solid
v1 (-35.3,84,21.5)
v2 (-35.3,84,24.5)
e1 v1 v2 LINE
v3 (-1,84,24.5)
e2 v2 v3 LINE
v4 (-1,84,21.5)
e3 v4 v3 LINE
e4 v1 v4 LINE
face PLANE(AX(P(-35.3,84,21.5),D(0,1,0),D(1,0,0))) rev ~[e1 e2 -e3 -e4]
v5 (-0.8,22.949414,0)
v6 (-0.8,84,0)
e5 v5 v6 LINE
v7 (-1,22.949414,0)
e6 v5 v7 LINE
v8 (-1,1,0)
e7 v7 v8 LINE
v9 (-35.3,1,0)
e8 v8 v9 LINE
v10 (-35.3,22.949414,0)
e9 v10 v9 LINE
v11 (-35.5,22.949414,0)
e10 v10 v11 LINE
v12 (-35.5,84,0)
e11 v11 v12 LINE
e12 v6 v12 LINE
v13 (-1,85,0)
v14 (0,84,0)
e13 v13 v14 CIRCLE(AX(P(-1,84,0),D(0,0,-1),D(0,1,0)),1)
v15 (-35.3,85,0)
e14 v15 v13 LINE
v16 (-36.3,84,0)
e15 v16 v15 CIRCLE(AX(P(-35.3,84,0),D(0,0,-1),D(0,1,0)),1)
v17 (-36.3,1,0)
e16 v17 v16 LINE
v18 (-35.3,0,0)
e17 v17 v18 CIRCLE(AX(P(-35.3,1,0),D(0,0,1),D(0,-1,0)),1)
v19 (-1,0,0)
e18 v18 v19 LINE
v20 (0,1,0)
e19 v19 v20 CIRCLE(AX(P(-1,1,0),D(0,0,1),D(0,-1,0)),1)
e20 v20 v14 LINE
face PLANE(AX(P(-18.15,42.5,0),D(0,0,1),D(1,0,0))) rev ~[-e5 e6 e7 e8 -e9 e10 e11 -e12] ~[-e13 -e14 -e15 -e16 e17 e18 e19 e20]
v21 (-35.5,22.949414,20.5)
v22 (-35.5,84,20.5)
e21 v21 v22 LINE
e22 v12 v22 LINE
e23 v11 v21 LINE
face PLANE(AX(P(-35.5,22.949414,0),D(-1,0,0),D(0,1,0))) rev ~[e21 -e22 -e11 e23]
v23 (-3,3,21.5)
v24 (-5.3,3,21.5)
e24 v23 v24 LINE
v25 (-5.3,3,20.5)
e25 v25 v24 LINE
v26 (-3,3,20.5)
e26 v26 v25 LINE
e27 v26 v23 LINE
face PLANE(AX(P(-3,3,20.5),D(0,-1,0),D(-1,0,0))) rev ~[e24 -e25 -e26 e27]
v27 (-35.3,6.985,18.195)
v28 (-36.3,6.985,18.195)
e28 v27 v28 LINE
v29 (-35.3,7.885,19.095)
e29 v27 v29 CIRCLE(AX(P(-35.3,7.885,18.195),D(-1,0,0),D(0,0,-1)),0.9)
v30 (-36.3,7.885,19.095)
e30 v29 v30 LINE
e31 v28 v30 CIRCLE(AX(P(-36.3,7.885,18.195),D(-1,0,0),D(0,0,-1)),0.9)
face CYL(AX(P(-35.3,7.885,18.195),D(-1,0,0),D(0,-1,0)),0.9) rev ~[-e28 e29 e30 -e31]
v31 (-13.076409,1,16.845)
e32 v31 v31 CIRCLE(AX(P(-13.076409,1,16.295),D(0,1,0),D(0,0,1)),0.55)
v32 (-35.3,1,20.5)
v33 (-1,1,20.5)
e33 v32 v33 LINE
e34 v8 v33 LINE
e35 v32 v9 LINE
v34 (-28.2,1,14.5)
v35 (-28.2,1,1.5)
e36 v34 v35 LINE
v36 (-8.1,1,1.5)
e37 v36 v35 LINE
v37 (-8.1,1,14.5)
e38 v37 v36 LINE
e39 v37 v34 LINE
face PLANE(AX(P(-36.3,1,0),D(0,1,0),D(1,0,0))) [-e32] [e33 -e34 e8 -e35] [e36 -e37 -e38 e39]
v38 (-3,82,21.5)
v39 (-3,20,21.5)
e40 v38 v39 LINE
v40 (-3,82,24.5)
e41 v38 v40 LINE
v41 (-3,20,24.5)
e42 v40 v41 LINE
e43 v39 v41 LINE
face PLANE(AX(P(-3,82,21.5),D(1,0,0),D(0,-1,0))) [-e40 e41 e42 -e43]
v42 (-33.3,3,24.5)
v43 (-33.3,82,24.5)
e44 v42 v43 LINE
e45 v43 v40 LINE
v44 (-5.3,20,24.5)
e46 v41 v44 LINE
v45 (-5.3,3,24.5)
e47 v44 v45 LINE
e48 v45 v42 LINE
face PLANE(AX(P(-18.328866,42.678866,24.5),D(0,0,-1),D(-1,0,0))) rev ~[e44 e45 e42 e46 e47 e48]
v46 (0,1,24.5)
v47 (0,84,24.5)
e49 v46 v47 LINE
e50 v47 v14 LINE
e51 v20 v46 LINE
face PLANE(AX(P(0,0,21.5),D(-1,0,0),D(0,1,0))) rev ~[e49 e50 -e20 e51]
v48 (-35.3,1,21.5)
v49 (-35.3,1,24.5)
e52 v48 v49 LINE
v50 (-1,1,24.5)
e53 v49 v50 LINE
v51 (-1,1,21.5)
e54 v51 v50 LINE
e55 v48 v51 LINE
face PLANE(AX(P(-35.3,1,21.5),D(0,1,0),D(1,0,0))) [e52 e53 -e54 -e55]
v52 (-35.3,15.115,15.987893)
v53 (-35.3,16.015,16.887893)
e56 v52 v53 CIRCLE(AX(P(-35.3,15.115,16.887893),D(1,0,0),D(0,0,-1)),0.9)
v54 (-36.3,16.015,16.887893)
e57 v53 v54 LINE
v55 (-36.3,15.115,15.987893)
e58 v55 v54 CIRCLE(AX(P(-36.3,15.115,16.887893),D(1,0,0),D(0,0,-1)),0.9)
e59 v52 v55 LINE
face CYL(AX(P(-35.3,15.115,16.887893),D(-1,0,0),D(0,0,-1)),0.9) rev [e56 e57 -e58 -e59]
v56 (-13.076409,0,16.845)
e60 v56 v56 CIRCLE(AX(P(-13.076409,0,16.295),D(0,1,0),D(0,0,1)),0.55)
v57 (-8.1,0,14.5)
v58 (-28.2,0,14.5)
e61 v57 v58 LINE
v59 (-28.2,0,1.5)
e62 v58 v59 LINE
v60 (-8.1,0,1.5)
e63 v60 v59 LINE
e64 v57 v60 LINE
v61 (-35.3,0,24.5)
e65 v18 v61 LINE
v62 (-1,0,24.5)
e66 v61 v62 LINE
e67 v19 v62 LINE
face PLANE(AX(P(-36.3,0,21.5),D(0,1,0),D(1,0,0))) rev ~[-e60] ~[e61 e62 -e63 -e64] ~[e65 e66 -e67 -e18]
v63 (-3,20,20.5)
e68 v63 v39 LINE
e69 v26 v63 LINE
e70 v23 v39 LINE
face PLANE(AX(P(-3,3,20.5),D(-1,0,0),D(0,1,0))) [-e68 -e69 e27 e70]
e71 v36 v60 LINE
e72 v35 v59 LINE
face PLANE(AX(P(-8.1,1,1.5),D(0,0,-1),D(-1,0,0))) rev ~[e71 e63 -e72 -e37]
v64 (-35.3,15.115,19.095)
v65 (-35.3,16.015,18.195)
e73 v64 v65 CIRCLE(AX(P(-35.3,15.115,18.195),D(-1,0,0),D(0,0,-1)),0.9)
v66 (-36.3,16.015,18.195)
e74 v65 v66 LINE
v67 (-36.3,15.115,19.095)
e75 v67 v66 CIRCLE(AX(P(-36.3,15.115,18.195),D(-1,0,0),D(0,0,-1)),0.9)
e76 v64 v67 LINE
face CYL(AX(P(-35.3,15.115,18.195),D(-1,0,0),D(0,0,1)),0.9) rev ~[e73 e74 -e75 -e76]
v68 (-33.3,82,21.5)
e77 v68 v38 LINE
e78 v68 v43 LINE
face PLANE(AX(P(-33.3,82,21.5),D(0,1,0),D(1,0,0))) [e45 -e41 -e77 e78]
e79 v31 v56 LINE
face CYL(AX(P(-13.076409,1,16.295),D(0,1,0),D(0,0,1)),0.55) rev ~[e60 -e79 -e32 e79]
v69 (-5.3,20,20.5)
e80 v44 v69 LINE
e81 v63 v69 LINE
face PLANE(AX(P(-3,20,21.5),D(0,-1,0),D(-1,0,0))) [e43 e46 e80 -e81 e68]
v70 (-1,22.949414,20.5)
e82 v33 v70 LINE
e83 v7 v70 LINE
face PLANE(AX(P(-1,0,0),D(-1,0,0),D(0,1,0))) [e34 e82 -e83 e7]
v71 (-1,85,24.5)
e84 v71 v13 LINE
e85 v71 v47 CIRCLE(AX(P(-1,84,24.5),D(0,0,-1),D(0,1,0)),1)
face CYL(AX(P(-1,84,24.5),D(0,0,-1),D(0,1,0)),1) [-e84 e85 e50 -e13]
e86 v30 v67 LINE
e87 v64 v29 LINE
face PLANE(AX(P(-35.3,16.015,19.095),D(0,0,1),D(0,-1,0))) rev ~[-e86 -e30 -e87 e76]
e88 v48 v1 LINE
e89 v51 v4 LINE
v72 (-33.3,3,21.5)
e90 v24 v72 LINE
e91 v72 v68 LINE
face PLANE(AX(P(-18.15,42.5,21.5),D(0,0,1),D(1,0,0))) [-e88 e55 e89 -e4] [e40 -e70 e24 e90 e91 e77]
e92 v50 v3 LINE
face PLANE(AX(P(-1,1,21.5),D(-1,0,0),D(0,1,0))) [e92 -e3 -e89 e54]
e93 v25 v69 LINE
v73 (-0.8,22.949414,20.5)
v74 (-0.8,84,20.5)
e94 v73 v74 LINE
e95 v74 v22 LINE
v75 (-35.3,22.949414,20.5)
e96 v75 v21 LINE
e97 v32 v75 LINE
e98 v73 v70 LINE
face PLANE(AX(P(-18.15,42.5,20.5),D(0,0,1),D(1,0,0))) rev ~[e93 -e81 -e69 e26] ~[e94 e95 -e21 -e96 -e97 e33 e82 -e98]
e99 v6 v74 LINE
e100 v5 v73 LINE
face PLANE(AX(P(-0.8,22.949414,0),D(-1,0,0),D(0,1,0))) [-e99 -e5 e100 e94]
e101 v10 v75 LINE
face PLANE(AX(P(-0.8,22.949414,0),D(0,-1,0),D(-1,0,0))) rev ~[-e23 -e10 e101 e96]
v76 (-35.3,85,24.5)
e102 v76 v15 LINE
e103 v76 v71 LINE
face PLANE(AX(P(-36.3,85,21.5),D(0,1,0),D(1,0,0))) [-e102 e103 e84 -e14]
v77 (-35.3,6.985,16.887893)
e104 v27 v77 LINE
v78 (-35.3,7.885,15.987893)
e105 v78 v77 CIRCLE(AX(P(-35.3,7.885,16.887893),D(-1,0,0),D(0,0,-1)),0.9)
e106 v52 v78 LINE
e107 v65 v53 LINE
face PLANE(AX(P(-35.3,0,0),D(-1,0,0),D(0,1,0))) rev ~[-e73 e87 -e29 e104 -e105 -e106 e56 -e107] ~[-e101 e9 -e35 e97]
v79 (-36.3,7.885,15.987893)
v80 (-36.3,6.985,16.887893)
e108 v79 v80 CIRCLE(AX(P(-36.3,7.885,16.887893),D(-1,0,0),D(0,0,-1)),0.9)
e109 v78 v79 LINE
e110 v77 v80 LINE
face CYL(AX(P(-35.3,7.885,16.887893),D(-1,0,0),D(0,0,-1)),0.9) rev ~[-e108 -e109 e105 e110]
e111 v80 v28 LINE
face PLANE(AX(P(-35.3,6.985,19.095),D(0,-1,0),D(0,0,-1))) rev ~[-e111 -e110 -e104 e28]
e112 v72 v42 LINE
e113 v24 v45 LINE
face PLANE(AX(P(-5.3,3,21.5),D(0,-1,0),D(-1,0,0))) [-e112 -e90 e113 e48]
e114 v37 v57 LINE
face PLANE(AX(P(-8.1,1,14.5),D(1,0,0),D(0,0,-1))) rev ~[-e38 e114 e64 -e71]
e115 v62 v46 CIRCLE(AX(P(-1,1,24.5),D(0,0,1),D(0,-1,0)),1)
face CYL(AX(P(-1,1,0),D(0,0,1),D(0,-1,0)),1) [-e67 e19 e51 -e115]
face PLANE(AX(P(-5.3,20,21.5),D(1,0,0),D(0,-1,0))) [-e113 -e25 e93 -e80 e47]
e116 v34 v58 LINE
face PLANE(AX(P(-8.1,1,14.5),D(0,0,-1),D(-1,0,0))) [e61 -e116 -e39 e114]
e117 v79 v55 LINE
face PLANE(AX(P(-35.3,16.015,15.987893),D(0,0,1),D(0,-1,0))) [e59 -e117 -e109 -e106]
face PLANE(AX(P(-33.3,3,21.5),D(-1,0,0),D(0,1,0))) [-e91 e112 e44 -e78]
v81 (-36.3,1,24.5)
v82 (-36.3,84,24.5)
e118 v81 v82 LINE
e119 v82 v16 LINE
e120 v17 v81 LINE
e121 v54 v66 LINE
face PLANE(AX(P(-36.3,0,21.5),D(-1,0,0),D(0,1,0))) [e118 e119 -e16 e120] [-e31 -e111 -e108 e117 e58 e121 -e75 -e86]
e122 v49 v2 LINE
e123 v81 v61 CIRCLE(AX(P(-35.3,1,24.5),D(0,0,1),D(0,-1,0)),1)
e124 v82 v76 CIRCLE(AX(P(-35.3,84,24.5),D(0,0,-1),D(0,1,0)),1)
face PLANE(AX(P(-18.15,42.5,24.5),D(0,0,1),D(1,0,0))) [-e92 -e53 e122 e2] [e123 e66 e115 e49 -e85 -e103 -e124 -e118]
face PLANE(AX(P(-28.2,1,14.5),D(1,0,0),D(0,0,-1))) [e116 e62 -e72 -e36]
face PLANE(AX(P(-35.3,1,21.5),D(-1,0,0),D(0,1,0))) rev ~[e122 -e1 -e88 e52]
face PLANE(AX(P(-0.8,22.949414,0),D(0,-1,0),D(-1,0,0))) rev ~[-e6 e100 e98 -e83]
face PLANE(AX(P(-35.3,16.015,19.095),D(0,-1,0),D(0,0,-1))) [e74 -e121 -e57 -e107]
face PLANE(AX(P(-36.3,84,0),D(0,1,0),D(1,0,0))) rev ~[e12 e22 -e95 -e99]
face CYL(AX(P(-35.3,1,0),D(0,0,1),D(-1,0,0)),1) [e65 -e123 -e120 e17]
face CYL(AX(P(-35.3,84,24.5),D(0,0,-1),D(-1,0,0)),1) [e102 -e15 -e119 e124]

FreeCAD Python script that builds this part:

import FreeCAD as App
import Part
import Sketcher
from FreeCAD import Vector


def edges_at(feature, points):
    """Names of the edges that pass closest to the given points."""
    edges = feature.Shape.Edges
    near = lambda p: min(range(len(edges)), key=lambda i: edges[i].distToShape(Part.Vertex(*p))[0])
    return sorted({f"Edge{near(p) + 1}" for p in points})


def faces_at(feature, points):
    """Names of the faces that lie closest to the given points."""
    faces = feature.Shape.Faces
    near = lambda p: min(range(len(faces)), key=lambda i: faces[i].distToShape(Part.Vertex(*p))[0])
    return sorted({f"Face{near(p) + 1}" for p in points})

doc = App.newDocument("Part")
body = doc.addObject("PartDesign::Body", "Body")

sketch1 = doc.addObject("Sketcher::SketchObject", "Sketch")
body.addObject(sketch1)
sketch1.AttachmentSupport = (doc.XY_Plane, [""])
sketch1.MapMode = "FlatFace"
sketch1.addGeometry(Part.LineSegment(Vector(-36, 85, 0), Vector(-36, 0, 0)), False)
sketch1.addGeometry(Part.LineSegment(Vector(-36, 0, 0), Vector(0, 0, 0)), False)
sketch1.addGeometry(Part.LineSegment(Vector(0, 0, 0), Vector(0, 85, 0)), False)
sketch1.addGeometry(Part.LineSegment(Vector(0, 85, 0), Vector(-36, 85, 0)), False)
sketch1.addConstraint(Sketcher.Constraint("Coincident", 0, 2, 1, 1))
sketch1.addConstraint(Sketcher.Constraint("Coincident", 1, 2, 2, 1))
sketch1.addConstraint(Sketcher.Constraint("Coincident", 2, 2, 3, 1))
sketch1.addConstraint(Sketcher.Constraint("Coincident", 3, 2, 0, 1))
sketch1.addConstraint(Sketcher.Constraint("Vertical", 0))
sketch1.addConstraint(Sketcher.Constraint("Horizontal", 1))
sketch1.addConstraint(Sketcher.Constraint("Vertical", 2))
sketch1.addConstraint(Sketcher.Constraint("Horizontal", 3))
sketch1.addConstraint(Sketcher.Constraint("Coincident", 1, 2, -1, 1))
sketch1.addConstraint(Sketcher.Constraint("DistanceY", 0, 2, 0, 1, 85.0))
sketch1.addConstraint(Sketcher.Constraint("DistanceX", 1, 1, 1, 2, 36.3))
pad1 = doc.addObject("PartDesign::Pad", "Pad")
body.addObject(pad1)
pad1.Profile = sketch1
pad1.Length = 21.5
doc.recompute()

thickness = doc.addObject("PartDesign::Thickness", "Thickness")
body.addObject(thickness)
thickness.Base = (pad1, faces_at(pad1, [(-18.15, 42.5, 0)]))
thickness.Value = 1
thickness.Reversed = True
thickness.Join = "Intersection"

sketch2 = doc.addObject("Sketcher::SketchObject", "Sketch001")
body.addObject(sketch2)
sketch2.AttachmentSupport = (doc.YZ_Plane, [""])
sketch2.MapMode = "FlatFace"
sketch2.AttachmentOffset = App.Placement(Vector(0, 0, -35.3), App.Rotation())
sketch2.addGeometry(Part.LineSegment(Vector(16, 16, 0), Vector(16, 19.1, 0)), False)
sketch2.addGeometry(Part.LineSegment(Vector(16, 19.1, 0), Vector(7, 19.1, 0)), False)
sketch2.addGeometry(Part.LineSegment(Vector(7, 19.1, 0), Vector(7, 16, 0)), False)
sketch2.addGeometry(Part.LineSegment(Vector(7, 16, 0), Vector(16, 16, 0)), False)
sketch2.addConstraint(Sketcher.Constraint("Coincident", 0, 2, 1, 1))
sketch2.addConstraint(Sketcher.Constraint("Coincident", 1, 2, 2, 1))
sketch2.addConstraint(Sketcher.Constraint("Coincident", 2, 2, 3, 1))
sketch2.addConstraint(Sketcher.Constraint("Coincident", 3, 2, 0, 1))
sketch2.addConstraint(Sketcher.Constraint("Vertical", 0))
sketch2.addConstraint(Sketcher.Constraint("Horizontal", 1))
sketch2.addConstraint(Sketcher.Constraint("Vertical", 2))
sketch2.addConstraint(Sketcher.Constraint("Horizontal", 3))
sketch2.addConstraint(Sketcher.Constraint("DistanceX", 1, 2, 1, 1, 9.03))
sketch2.addConstraint(Sketcher.Constraint("DistanceX", -1, 1, 0, 2, 16.015))
sketch2.addConstraint(Sketcher.Constraint("DistanceY", -1, 1, 0, 2, 19.095))
sketch2.addConstraint(Sketcher.Constraint("DistanceY", 0, 1, 0, 2, 3.107107))
pocket1 = doc.addObject("PartDesign::Pocket", "Pocket")
body.addObject(pocket1)
pocket1.Profile = sketch2
pocket1.Length = 10

sketch3 = doc.addObject("Sketcher::SketchObject", "Sketch002")
body.addObject(sketch3)
sketch3.AttachmentSupport = (doc.XY_Plane, [""])
sketch3.MapMode = "FlatFace"
sketch3.AttachmentOffset = App.Placement(Vector(0, 0, 21.5), App.Rotation())
sketch3.addGeometry(Part.LineSegment(Vector(-36, 85, 0), Vector(-36, 0, 0)), False)
sketch3.addGeometry(Part.LineSegment(Vector(-36, 0, 0), Vector(0, 0, 0)), False)
sketch3.addGeometry(Part.LineSegment(Vector(0, 0, 0), Vector(0, 85, 0)), False)
sketch3.addGeometry(Part.LineSegment(Vector(0, 85, 0), Vector(-36, 85, 0)), False)
sketch3.addGeometry(Part.LineSegment(Vector(-1, 1, 0), Vector(-35, 1, 0)), False)
sketch3.addGeometry(Part.LineSegment(Vector(-35, 1, 0), Vector(-35, 84, 0)), False)
sketch3.addGeometry(Part.LineSegment(Vector(-35, 84, 0), Vector(-1, 84, 0)), False)
sketch3.addGeometry(Part.LineSegment(Vector(-1, 84, 0), Vector(-1, 1, 0)), False)
sketch3.addConstraint(Sketcher.Constraint("Coincident", 0, 2, 1, 1))
sketch3.addConstraint(Sketcher.Constraint("Coincident", 1, 2, 2, 1))
sketch3.addConstraint(Sketcher.Constraint("Coincident", 2, 2, 3, 1))
sketch3.addConstraint(Sketcher.Constraint("Coincident", 3, 2, 0, 1))
sketch3.addConstraint(Sketcher.Constraint("Coincident", 4, 2, 5, 1))
sketch3.addConstraint(Sketcher.Constraint("Coincident", 5, 2, 6, 1))
sketch3.addConstraint(Sketcher.Constraint("Coincident", 6, 2, 7, 1))
sketch3.addConstraint(Sketcher.Constraint("Coincident", 7, 2, 4, 1))
sketch3.addConstraint(Sketcher.Constraint("Vertical", 0))
sketch3.addConstraint(Sketcher.Constraint("Horizontal", 1))
sketch3.addConstraint(Sketcher.Constraint("Vertical", 2))
sketch3.addConstraint(Sketcher.Constraint("Horizontal", 3))
sketch3.addConstraint(Sketcher.Constraint("Horizontal", 4))
sketch3.addConstraint(Sketcher.Constraint("Vertical", 5))
sketch3.addConstraint(Sketcher.Constraint("Horizontal", 6))
sketch3.addConstraint(Sketcher.Constraint("Vertical", 7))
sketch3.addConstraint(Sketcher.Constraint("Coincident", 1, 2, -1, 1))
sketch3.addConstraint(Sketcher.Constraint("DistanceY", 0, 2, 0, 1, 85.0))
sketch3.addConstraint(Sketcher.Constraint("DistanceY", 5, 1, 5, 2, 83.0))
sketch3.addConstraint(Sketcher.Constraint("DistanceX", 1, 1, 1, 2, 36.3))
sketch3.addConstraint(Sketcher.Constraint("DistanceX", 4, 2, 4, 1, 34.3))
sketch3.addConstraint(Sketcher.Constraint("DistanceY", -1, 1, 4, 2, 1.0))
sketch3.addConstraint(Sketcher.Constraint("DistanceX", 6, 2, -1, 1, 1.0))
pad2 = doc.addObject("PartDesign::Pad", "Pad001")
body.addObject(pad2)
pad2.Profile = sketch3
pad2.Length = 3
doc.recompute()

fillet = doc.addObject("PartDesign::Fillet", "Fillet")
body.addObject(fillet)
fillet.Base = (pad2, edges_at(pad2, [
    (-35.8, 6.985, 15.988),
    (-35.8, 6.985, 19.095),
    (-35.8, 16.015, 19.095),
    (-35.8, 16.015, 15.988),
]))
fillet.Radius = 0.9
doc.recompute()

fillet2 = doc.addObject("PartDesign::Fillet", "Fillet001")
body.addObject(fillet2)
fillet2.Base = (fillet, edges_at(fillet, [
    (-36.3, 85, 12.25),
    (-36.3, 0, 12.25),
    (0, 0, 12.25),
    (0, 85, 12.25),
]))
fillet2.Radius = 1

sketch4 = doc.addObject("Sketcher::SketchObject", "Sketch003")
body.addObject(sketch4)
sketch4.AttachmentSupport = (doc.XY_Plane, [""])
sketch4.MapMode = "FlatFace"
sketch4.addGeometry(Part.LineSegment(Vector(-1, 84, 0), Vector(-1, 23, 0)), False)
sketch4.addGeometry(Part.LineSegment(Vector(-1, 23, 0), Vector(-36, 23, 0)), False)
sketch4.addGeometry(Part.LineSegment(Vector(-36, 23, 0), Vector(-36, 84, 0)), False)
sketch4.addGeometry(Part.LineSegment(Vector(-36, 84, 0), Vector(-1, 84, 0)), False)
sketch4.addConstraint(Sketcher.Constraint("Coincident", 0, 2, 1, 1))
sketch4.addConstraint(Sketcher.Constraint("Coincident", 1, 2, 2, 1))
sketch4.addConstraint(Sketcher.Constraint("Coincident", 2, 2, 3, 1))
sketch4.addConstraint(Sketcher.Constraint("Coincident", 3, 2, 0, 1))
sketch4.addConstraint(Sketcher.Constraint("Vertical", 0))
sketch4.addConstraint(Sketcher.Constraint("Horizontal", 1))
sketch4.addConstraint(Sketcher.Constraint("Vertical", 2))
sketch4.addConstraint(Sketcher.Constraint("Horizontal", 3))
sketch4.addConstraint(Sketcher.Constraint("DistanceX", 1, 2, 1, 1, 34.7))
sketch4.addConstraint(Sketcher.Constraint("DistanceY", -1, 1, 2, 2, 84.0))
sketch4.addConstraint(Sketcher.Constraint("DistanceX", 0, 2, -1, 1, 0.8))
sketch4.addConstraint(Sketcher.Constraint("DistanceY", 0, 2, 0, 1, 61.050586))
pocket2 = doc.addObject("PartDesign::Pocket", "Pocket001")
body.addObject(pocket2)
pocket2.Profile = sketch4
pocket2.Length = 20.5
pocket2.Reversed = True

sketch5 = doc.addObject("Sketcher::SketchObject", "Sketch004")
body.addObject(sketch5)
sketch5.AttachmentSupport = (doc.XY_Plane, [""])
sketch5.MapMode = "FlatFace"
sketch5.AttachmentOffset = App.Placement(Vector(0, 0, 20.5), App.Rotation())
sketch5.addGeometry(Part.LineSegment(Vector(-3, 20, 0), Vector(-3, 3, 0)), False)
sketch5.addGeometry(Part.LineSegment(Vector(-3, 3, 0), Vector(-5.3, 3, 0)), False)
sketch5.addGeometry(Part.LineSegment(Vector(-5.3, 3, 0), Vector(-5.3, 20, 0)), False)
sketch5.addGeometry(Part.LineSegment(Vector(-5.3, 20, 0), Vector(-3, 20, 0)), False)
sketch5.addConstraint(Sketcher.Constraint("Coincident", 0, 2, 1, 1))
sketch5.addConstraint(Sketcher.Constraint("Coincident", 1, 2, 2, 1))
sketch5.addConstraint(Sketcher.Constraint("Coincident", 2, 2, 3, 1))
sketch5.addConstraint(Sketcher.Constraint("Coincident", 3, 2, 0, 1))
sketch5.addConstraint(Sketcher.Constraint("Vertical", 0))
sketch5.addConstraint(Sketcher.Constraint("Horizontal", 1))
sketch5.addConstraint(Sketcher.Constraint("Vertical", 2))
sketch5.addConstraint(Sketcher.Constraint("Horizontal", 3))
sketch5.addConstraint(Sketcher.Constraint("DistanceY", 0, 2, 0, 1, 17.0))
sketch5.addConstraint(Sketcher.Constraint("DistanceX", 1, 2, 1, 1, 2.3))
sketch5.addConstraint(Sketcher.Constraint("DistanceX", 0, 2, -1, 1, 3.0))
sketch5.addConstraint(Sketcher.Constraint("DistanceY", -1, 1, 0, 2, 3.0))
pocket3 = doc.addObject("PartDesign::Pocket", "Pocket002")
body.addObject(pocket3)
pocket3.Profile = sketch5
pocket3.Length = 1
pocket3.Reversed = True

sketch6 = doc.addObject("Sketcher::SketchObject", "Sketch005")
body.addObject(sketch6)
sketch6.AttachmentSupport = (doc.XY_Plane, [""])
sketch6.MapMode = "FlatFace"
sketch6.AttachmentOffset = App.Placement(Vector(0, 0, 21.5), App.Rotation())
sketch6.addGeometry(Part.LineSegment(Vector(-5.3, 20, 0), Vector(-3, 20, 0)), False)
sketch6.addGeometry(Part.LineSegment(Vector(-3, 20, 0), Vector(-3, 82, 0)), False)
sketch6.addGeometry(Part.LineSegment(Vector(-3, 82, 0), Vector(-33.3, 82, 0)), False)
sketch6.addGeometry(Part.LineSegment(Vector(-33.3, 82, 0), Vector(-33.3, 3, 0)), False)
sketch6.addGeometry(Part.LineSegment(Vector(-33.3, 3, 0), Vector(-5.3, 3, 0)), False)
sketch6.addGeometry(Part.LineSegment(Vector(-5.3, 3, 0), Vector(-5.3, 20, 0)), False)
sketch6.addConstraint(Sketcher.Constraint("Coincident", 0, 2, 1, 1))
sketch6.addConstraint(Sketcher.Constraint("Coincident", 1, 2, 2, 1))
sketch6.addConstraint(Sketcher.Constraint("Coincident", 2, 2, 3, 1))
sketch6.addConstraint(Sketcher.Constraint("Coincident", 3, 2, 4, 1))
sketch6.addConstraint(Sketcher.Constraint("Coincident", 4, 2, 5, 1))
sketch6.addConstraint(Sketcher.Constraint("Coincident", 5, 2, 0, 1))
sketch6.addConstraint(Sketcher.Constraint("Horizontal", 0))
sketch6.addConstraint(Sketcher.Constraint("Vertical", 1))
sketch6.addConstraint(Sketcher.Constraint("Horizontal", 2))
sketch6.addConstraint(Sketcher.Constraint("Vertical", 3))
sketch6.addConstraint(Sketcher.Constraint("Horizontal", 4))
sketch6.addConstraint(Sketcher.Constraint("Vertical", 5))
sketch6.addConstraint(Sketcher.Constraint("DistanceX", 4, 1, 4, 2, 28.0))
sketch6.addConstraint(Sketcher.Constraint("DistanceY", 1, 1, 1, 2, 62.0))
sketch6.addConstraint(Sketcher.Constraint("DistanceY", 3, 2, 3, 1, 79.0))
sketch6.addConstraint(Sketcher.Constraint("DistanceX", 0, 1, 0, 2, 2.3))
sketch6.addConstraint(Sketcher.Constraint("DistanceX", 0, 2, -1, 1, 3.0))
sketch6.addConstraint(Sketcher.Constraint("DistanceY", -1, 1, 0, 2, 20.0))
pad3 = doc.addObject("PartDesign::Pad", "Pad002")
body.addObject(pad3)
pad3.Profile = sketch6
pad3.Length = 3

sketch7 = doc.addObject("Sketcher::SketchObject", "Sketch006")
body.addObject(sketch7)
sketch7.AttachmentSupport = (doc.XZ_Plane, [""])
sketch7.MapMode = "FlatFace"
sketch7.AttachmentOffset = App.Placement(Vector(0, 0, -1), App.Rotation())
sketch7.addGeometry(Part.Circle(Vector(-13.1, 16.3, 0), Vector(0, 0, 1), 0.6), False)
sketch7.addConstraint(Sketcher.Constraint("Diameter", 0, 1.1))
sketch7.addConstraint(Sketcher.Constraint("DistanceY", -1, 1, 0, 3, 16.295))
sketch7.addConstraint(Sketcher.Constraint("DistanceX", 0, 3, -1, 1, 13.076409))
pocket4 = doc.addObject("PartDesign::Pocket", "Pocket003")
body.addObject(pocket4)
pocket4.Profile = sketch7
pocket4.Length = 2
pocket4.Reversed = True

sketch8 = doc.addObject("Sketcher::SketchObject", "Sketch007")
body.addObject(sketch8)
sketch8.AttachmentSupport = (doc.XZ_Plane, [""])
sketch8.MapMode = "FlatFace"
sketch8.AttachmentOffset = App.Placement(Vector(0, 0, -1), App.Rotation())
sketch8.addGeometry(Part.LineSegment(Vector(-28, 14, 0), Vector(-8, 14, 0)), False)
sketch8.addGeometry(Part.LineSegment(Vector(-8, 14, 0), Vector(-8, 2, 0)), False)
sketch8.addGeometry(Part.LineSegment(Vector(-8, 2, 0), Vector(-28, 2, 0)), False)
sketch8.addGeometry(Part.LineSegment(Vector(-28, 2, 0), Vector(-28, 14, 0)), False)
sketch8.addConstraint(Sketcher.Constraint("Coincident", 0, 2, 1, 1))
sketch8.addConstraint(Sketcher.Constraint("Coincident", 1, 2, 2, 1))
sketch8.addConstraint(Sketcher.Constraint("Coincident", 2, 2, 3, 1))
sketch8.addConstraint(Sketcher.Constraint("Coincident", 3, 2, 0, 1))
sketch8.addConstraint(Sketcher.Constraint("Horizontal", 0))
sketch8.addConstraint(Sketcher.Constraint("Vertical", 1))
sketch8.addConstraint(Sketcher.Constraint("Horizontal", 2))
sketch8.addConstraint(Sketcher.Constraint("Vertical", 3))
sketch8.addConstraint(Sketcher.Constraint("DistanceY", 1, 2, 1, 1, 13.0))
sketch8.addConstraint(Sketcher.Constraint("DistanceX", 0, 1, 0, 2, 20.1))
sketch8.addConstraint(Sketcher.Constraint("DistanceX", 0, 2, -1, 1, 8.1))
sketch8.addConstraint(Sketcher.Constraint("DistanceY", -1, 1, 0, 2, 14.5))
pocket5 = doc.addObject("PartDesign::Pocket", "Pocket004")
body.addObject(pocket5)
pocket5.Profile = sketch8
pocket5.Length = 3
pocket5.Reversed = True

doc.recompute()
